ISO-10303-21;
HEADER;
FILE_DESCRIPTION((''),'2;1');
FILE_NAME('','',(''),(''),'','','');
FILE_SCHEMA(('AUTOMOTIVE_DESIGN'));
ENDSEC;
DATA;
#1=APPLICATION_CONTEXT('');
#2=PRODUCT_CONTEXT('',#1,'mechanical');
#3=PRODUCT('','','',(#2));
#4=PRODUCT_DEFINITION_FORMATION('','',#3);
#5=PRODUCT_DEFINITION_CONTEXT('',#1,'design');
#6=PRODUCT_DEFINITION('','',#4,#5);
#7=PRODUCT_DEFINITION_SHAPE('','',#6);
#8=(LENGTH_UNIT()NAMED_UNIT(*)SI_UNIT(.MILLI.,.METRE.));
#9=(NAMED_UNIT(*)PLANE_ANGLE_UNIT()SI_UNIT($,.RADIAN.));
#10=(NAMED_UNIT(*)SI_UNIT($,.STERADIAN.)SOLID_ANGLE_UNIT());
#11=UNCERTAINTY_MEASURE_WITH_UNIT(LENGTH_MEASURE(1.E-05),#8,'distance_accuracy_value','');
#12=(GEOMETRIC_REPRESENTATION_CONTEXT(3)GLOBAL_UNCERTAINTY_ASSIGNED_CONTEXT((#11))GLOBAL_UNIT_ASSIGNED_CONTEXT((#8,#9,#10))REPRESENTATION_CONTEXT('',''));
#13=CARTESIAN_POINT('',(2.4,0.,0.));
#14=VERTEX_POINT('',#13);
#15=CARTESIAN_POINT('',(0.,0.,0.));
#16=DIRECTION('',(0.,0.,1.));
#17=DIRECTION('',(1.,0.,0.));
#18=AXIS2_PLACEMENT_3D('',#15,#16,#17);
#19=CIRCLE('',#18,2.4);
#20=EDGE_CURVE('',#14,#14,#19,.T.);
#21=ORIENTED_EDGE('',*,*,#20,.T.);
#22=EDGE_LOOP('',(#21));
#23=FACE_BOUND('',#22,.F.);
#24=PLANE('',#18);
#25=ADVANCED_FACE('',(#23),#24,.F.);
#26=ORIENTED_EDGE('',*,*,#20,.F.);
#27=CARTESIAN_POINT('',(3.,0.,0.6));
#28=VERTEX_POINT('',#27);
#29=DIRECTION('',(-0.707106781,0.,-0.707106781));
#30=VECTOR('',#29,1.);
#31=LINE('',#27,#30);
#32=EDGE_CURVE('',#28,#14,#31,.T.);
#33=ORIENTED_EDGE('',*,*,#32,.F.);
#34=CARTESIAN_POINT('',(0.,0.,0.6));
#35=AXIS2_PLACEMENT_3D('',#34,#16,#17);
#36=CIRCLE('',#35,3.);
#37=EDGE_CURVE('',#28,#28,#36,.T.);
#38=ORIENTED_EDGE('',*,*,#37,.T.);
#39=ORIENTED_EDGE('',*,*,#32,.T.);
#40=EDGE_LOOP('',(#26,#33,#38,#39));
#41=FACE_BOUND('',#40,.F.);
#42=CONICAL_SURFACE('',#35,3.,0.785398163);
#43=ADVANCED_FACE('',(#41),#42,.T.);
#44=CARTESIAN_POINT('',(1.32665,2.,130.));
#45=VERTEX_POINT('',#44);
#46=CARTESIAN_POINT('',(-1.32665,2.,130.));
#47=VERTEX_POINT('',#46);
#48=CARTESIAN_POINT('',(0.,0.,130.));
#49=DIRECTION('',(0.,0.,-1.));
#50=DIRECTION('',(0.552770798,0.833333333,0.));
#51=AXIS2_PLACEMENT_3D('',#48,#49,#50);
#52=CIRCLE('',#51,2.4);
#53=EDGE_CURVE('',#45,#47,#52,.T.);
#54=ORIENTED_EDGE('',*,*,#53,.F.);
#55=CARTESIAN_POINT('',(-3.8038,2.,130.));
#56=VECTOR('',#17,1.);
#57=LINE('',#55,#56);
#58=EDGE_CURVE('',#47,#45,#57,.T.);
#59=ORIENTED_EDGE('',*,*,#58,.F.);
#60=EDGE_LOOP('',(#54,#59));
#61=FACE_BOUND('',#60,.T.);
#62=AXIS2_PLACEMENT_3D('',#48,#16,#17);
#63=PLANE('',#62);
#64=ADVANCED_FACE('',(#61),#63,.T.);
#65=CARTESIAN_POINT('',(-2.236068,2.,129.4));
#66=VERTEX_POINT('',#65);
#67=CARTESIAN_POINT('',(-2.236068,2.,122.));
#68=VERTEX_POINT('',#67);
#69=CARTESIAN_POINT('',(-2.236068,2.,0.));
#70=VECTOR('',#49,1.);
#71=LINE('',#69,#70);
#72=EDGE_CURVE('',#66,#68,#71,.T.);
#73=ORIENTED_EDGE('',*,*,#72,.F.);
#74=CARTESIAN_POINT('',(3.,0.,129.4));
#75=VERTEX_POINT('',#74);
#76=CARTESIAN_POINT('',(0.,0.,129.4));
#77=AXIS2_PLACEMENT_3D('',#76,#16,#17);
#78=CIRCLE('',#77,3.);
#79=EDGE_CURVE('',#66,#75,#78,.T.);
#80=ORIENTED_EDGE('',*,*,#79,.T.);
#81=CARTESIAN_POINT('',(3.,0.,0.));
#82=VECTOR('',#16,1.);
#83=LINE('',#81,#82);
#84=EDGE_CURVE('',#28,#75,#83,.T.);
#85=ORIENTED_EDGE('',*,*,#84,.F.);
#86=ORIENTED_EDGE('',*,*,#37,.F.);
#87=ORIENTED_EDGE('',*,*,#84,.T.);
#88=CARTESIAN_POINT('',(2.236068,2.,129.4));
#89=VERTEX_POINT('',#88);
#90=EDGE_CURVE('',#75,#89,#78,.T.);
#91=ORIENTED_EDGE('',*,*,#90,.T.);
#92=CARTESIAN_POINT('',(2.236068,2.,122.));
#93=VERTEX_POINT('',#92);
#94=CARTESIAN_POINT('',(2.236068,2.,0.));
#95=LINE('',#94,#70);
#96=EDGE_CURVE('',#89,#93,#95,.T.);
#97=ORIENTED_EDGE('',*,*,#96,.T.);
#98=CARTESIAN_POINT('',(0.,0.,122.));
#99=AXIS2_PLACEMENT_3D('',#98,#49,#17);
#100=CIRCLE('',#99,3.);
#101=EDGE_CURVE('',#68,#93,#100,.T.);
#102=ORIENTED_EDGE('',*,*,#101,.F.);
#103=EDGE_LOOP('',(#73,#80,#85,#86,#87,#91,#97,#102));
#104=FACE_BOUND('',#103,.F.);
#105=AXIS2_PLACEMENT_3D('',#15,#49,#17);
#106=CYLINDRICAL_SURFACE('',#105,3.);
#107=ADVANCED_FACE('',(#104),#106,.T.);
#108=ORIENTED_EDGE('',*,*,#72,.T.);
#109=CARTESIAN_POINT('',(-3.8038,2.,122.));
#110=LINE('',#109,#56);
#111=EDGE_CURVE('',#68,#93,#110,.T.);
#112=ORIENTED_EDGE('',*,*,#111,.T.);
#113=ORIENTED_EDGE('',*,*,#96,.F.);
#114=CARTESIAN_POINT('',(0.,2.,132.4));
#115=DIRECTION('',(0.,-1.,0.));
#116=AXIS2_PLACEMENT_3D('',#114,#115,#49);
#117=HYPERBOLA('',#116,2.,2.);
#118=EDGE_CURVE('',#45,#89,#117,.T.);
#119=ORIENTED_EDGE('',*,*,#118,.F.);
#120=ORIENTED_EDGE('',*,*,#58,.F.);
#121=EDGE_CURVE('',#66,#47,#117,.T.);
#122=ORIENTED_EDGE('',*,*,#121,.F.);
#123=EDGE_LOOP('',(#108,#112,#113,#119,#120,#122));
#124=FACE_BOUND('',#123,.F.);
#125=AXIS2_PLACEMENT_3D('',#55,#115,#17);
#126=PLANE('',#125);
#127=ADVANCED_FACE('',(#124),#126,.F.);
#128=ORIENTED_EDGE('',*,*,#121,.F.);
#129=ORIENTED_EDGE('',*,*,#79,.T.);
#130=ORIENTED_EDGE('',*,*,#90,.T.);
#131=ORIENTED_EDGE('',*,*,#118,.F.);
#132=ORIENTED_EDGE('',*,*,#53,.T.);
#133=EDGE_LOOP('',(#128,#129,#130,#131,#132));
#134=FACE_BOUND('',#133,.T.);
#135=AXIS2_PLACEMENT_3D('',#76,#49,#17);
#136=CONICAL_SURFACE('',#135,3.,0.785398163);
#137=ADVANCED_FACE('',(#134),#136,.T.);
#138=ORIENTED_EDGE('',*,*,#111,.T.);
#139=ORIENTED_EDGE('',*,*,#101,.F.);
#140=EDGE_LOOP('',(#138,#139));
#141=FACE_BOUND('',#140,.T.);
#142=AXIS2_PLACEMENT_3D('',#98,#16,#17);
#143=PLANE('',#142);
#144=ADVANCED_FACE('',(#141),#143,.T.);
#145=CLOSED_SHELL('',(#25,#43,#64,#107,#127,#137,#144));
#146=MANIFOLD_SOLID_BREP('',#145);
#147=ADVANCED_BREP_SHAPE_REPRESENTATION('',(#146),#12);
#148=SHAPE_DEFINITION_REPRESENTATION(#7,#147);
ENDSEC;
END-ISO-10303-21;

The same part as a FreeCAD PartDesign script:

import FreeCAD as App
import Part
import Sketcher

V = App.Vector
Q = App.Units.Quantity


def edges_at(feature, points):
    """Names of the edges that pass closest to the given points."""
    edges = feature.Shape.Edges
    near = lambda p: min(range(len(edges)), key=lambda i: edges[i].distToShape(Part.Vertex(*p))[0])
    return sorted({f"Edge{near(p) + 1}" for p in points})


def add_polygon(sketch, points):
    """Adds a closed chain of lines whose ends are joined by coincident constraints."""
    first, n = sketch.GeometryCount, len(points)
    for a, b in zip(points, points[1:] + points[:1]):
        sketch.addGeometry(Part.LineSegment(App.Vector(*a, 0), App.Vector(*b, 0)), False)
    for i in range(n):
        sketch.addConstraint(Sketcher.Constraint("Coincident", first + i, 2, first + (i + 1) % n, 1))

doc = App.newDocument("Part")
body = doc.addObject("PartDesign::Body", "Body")

# Sketch on XY plane
sketch1 = doc.addObject("Sketcher::SketchObject", "Sketch")
body.addObject(sketch1)
sketch1.AttachmentSupport = (doc.XY_Plane, [""])
sketch1.MapMode = "FlatFace"
sketch1.addGeometry(Part.Circle(V(0, 0, 0), V(0, 0, 1), 3), False)
sketch1.addConstraint([
    Sketcher.Constraint("Coincident", 0, 3, -1, 1),
    Sketcher.Constraint("Diameter", 0, Q("6 mm")),
])
pad1 = doc.addObject("PartDesign::Pad", "Pad")
body.addObject(pad1)
pad1.Profile = sketch1
pad1.Length = 130
doc.recompute()

chamfer = doc.addObject("PartDesign::Chamfer", "Chamfer")
body.addObject(chamfer)
chamfer.Base = (pad1, edges_at(pad1, [(-3, 0, 130)]))
chamfer.Size = 0.6
doc.recompute()

chamfer2 = doc.addObject("PartDesign::Chamfer", "Chamfer001")
body.addObject(chamfer2)
chamfer2.Base = (chamfer, edges_at(chamfer, [(-3, 0, 0)]))
chamfer2.Size = 0.6

# Sketch on XY plane
sketch2 = doc.addObject("Sketcher::SketchObject", "Sketch001")
body.addObject(sketch2)
sketch2.AttachmentSupport = (doc.XY_Plane, [""])
sketch2.MapMode = "FlatFace"
sketch2.AttachmentOffset = App.Placement(V(0, 0, 130), App.Rotation())
add_polygon(sketch2, [(3.9, 2), (3.9, 4.6), (-3.8, 4.6), (-3.8, 2)])  # lines 0-3
sketch2.addConstraint([
    Sketcher.Constraint("Vertical", 0),
    Sketcher.Constraint("Horizontal", 1),
    Sketcher.Constraint("Vertical", 2),
    Sketcher.Constraint("Horizontal", 3),
    Sketcher.Constraint("DistanceY", -1, 1, 2, 2, Q("2 mm")),
    Sketcher.Constraint("DistanceX", 1, 2, 1, 1, Q("7.6734 mm")),
    Sketcher.Constraint("DistanceY", 0, 1, 0, 2, Q("2.6025 mm")),
    Sketcher.Constraint("DistanceX", -1, 1, 0, 2, Q("3.8696 mm")),
])
pocket1 = doc.addObject("PartDesign::Pocket", "Pocket")
body.addObject(pocket1)
pocket1.Profile = sketch2
pocket1.Length = 8

doc.recompute()
